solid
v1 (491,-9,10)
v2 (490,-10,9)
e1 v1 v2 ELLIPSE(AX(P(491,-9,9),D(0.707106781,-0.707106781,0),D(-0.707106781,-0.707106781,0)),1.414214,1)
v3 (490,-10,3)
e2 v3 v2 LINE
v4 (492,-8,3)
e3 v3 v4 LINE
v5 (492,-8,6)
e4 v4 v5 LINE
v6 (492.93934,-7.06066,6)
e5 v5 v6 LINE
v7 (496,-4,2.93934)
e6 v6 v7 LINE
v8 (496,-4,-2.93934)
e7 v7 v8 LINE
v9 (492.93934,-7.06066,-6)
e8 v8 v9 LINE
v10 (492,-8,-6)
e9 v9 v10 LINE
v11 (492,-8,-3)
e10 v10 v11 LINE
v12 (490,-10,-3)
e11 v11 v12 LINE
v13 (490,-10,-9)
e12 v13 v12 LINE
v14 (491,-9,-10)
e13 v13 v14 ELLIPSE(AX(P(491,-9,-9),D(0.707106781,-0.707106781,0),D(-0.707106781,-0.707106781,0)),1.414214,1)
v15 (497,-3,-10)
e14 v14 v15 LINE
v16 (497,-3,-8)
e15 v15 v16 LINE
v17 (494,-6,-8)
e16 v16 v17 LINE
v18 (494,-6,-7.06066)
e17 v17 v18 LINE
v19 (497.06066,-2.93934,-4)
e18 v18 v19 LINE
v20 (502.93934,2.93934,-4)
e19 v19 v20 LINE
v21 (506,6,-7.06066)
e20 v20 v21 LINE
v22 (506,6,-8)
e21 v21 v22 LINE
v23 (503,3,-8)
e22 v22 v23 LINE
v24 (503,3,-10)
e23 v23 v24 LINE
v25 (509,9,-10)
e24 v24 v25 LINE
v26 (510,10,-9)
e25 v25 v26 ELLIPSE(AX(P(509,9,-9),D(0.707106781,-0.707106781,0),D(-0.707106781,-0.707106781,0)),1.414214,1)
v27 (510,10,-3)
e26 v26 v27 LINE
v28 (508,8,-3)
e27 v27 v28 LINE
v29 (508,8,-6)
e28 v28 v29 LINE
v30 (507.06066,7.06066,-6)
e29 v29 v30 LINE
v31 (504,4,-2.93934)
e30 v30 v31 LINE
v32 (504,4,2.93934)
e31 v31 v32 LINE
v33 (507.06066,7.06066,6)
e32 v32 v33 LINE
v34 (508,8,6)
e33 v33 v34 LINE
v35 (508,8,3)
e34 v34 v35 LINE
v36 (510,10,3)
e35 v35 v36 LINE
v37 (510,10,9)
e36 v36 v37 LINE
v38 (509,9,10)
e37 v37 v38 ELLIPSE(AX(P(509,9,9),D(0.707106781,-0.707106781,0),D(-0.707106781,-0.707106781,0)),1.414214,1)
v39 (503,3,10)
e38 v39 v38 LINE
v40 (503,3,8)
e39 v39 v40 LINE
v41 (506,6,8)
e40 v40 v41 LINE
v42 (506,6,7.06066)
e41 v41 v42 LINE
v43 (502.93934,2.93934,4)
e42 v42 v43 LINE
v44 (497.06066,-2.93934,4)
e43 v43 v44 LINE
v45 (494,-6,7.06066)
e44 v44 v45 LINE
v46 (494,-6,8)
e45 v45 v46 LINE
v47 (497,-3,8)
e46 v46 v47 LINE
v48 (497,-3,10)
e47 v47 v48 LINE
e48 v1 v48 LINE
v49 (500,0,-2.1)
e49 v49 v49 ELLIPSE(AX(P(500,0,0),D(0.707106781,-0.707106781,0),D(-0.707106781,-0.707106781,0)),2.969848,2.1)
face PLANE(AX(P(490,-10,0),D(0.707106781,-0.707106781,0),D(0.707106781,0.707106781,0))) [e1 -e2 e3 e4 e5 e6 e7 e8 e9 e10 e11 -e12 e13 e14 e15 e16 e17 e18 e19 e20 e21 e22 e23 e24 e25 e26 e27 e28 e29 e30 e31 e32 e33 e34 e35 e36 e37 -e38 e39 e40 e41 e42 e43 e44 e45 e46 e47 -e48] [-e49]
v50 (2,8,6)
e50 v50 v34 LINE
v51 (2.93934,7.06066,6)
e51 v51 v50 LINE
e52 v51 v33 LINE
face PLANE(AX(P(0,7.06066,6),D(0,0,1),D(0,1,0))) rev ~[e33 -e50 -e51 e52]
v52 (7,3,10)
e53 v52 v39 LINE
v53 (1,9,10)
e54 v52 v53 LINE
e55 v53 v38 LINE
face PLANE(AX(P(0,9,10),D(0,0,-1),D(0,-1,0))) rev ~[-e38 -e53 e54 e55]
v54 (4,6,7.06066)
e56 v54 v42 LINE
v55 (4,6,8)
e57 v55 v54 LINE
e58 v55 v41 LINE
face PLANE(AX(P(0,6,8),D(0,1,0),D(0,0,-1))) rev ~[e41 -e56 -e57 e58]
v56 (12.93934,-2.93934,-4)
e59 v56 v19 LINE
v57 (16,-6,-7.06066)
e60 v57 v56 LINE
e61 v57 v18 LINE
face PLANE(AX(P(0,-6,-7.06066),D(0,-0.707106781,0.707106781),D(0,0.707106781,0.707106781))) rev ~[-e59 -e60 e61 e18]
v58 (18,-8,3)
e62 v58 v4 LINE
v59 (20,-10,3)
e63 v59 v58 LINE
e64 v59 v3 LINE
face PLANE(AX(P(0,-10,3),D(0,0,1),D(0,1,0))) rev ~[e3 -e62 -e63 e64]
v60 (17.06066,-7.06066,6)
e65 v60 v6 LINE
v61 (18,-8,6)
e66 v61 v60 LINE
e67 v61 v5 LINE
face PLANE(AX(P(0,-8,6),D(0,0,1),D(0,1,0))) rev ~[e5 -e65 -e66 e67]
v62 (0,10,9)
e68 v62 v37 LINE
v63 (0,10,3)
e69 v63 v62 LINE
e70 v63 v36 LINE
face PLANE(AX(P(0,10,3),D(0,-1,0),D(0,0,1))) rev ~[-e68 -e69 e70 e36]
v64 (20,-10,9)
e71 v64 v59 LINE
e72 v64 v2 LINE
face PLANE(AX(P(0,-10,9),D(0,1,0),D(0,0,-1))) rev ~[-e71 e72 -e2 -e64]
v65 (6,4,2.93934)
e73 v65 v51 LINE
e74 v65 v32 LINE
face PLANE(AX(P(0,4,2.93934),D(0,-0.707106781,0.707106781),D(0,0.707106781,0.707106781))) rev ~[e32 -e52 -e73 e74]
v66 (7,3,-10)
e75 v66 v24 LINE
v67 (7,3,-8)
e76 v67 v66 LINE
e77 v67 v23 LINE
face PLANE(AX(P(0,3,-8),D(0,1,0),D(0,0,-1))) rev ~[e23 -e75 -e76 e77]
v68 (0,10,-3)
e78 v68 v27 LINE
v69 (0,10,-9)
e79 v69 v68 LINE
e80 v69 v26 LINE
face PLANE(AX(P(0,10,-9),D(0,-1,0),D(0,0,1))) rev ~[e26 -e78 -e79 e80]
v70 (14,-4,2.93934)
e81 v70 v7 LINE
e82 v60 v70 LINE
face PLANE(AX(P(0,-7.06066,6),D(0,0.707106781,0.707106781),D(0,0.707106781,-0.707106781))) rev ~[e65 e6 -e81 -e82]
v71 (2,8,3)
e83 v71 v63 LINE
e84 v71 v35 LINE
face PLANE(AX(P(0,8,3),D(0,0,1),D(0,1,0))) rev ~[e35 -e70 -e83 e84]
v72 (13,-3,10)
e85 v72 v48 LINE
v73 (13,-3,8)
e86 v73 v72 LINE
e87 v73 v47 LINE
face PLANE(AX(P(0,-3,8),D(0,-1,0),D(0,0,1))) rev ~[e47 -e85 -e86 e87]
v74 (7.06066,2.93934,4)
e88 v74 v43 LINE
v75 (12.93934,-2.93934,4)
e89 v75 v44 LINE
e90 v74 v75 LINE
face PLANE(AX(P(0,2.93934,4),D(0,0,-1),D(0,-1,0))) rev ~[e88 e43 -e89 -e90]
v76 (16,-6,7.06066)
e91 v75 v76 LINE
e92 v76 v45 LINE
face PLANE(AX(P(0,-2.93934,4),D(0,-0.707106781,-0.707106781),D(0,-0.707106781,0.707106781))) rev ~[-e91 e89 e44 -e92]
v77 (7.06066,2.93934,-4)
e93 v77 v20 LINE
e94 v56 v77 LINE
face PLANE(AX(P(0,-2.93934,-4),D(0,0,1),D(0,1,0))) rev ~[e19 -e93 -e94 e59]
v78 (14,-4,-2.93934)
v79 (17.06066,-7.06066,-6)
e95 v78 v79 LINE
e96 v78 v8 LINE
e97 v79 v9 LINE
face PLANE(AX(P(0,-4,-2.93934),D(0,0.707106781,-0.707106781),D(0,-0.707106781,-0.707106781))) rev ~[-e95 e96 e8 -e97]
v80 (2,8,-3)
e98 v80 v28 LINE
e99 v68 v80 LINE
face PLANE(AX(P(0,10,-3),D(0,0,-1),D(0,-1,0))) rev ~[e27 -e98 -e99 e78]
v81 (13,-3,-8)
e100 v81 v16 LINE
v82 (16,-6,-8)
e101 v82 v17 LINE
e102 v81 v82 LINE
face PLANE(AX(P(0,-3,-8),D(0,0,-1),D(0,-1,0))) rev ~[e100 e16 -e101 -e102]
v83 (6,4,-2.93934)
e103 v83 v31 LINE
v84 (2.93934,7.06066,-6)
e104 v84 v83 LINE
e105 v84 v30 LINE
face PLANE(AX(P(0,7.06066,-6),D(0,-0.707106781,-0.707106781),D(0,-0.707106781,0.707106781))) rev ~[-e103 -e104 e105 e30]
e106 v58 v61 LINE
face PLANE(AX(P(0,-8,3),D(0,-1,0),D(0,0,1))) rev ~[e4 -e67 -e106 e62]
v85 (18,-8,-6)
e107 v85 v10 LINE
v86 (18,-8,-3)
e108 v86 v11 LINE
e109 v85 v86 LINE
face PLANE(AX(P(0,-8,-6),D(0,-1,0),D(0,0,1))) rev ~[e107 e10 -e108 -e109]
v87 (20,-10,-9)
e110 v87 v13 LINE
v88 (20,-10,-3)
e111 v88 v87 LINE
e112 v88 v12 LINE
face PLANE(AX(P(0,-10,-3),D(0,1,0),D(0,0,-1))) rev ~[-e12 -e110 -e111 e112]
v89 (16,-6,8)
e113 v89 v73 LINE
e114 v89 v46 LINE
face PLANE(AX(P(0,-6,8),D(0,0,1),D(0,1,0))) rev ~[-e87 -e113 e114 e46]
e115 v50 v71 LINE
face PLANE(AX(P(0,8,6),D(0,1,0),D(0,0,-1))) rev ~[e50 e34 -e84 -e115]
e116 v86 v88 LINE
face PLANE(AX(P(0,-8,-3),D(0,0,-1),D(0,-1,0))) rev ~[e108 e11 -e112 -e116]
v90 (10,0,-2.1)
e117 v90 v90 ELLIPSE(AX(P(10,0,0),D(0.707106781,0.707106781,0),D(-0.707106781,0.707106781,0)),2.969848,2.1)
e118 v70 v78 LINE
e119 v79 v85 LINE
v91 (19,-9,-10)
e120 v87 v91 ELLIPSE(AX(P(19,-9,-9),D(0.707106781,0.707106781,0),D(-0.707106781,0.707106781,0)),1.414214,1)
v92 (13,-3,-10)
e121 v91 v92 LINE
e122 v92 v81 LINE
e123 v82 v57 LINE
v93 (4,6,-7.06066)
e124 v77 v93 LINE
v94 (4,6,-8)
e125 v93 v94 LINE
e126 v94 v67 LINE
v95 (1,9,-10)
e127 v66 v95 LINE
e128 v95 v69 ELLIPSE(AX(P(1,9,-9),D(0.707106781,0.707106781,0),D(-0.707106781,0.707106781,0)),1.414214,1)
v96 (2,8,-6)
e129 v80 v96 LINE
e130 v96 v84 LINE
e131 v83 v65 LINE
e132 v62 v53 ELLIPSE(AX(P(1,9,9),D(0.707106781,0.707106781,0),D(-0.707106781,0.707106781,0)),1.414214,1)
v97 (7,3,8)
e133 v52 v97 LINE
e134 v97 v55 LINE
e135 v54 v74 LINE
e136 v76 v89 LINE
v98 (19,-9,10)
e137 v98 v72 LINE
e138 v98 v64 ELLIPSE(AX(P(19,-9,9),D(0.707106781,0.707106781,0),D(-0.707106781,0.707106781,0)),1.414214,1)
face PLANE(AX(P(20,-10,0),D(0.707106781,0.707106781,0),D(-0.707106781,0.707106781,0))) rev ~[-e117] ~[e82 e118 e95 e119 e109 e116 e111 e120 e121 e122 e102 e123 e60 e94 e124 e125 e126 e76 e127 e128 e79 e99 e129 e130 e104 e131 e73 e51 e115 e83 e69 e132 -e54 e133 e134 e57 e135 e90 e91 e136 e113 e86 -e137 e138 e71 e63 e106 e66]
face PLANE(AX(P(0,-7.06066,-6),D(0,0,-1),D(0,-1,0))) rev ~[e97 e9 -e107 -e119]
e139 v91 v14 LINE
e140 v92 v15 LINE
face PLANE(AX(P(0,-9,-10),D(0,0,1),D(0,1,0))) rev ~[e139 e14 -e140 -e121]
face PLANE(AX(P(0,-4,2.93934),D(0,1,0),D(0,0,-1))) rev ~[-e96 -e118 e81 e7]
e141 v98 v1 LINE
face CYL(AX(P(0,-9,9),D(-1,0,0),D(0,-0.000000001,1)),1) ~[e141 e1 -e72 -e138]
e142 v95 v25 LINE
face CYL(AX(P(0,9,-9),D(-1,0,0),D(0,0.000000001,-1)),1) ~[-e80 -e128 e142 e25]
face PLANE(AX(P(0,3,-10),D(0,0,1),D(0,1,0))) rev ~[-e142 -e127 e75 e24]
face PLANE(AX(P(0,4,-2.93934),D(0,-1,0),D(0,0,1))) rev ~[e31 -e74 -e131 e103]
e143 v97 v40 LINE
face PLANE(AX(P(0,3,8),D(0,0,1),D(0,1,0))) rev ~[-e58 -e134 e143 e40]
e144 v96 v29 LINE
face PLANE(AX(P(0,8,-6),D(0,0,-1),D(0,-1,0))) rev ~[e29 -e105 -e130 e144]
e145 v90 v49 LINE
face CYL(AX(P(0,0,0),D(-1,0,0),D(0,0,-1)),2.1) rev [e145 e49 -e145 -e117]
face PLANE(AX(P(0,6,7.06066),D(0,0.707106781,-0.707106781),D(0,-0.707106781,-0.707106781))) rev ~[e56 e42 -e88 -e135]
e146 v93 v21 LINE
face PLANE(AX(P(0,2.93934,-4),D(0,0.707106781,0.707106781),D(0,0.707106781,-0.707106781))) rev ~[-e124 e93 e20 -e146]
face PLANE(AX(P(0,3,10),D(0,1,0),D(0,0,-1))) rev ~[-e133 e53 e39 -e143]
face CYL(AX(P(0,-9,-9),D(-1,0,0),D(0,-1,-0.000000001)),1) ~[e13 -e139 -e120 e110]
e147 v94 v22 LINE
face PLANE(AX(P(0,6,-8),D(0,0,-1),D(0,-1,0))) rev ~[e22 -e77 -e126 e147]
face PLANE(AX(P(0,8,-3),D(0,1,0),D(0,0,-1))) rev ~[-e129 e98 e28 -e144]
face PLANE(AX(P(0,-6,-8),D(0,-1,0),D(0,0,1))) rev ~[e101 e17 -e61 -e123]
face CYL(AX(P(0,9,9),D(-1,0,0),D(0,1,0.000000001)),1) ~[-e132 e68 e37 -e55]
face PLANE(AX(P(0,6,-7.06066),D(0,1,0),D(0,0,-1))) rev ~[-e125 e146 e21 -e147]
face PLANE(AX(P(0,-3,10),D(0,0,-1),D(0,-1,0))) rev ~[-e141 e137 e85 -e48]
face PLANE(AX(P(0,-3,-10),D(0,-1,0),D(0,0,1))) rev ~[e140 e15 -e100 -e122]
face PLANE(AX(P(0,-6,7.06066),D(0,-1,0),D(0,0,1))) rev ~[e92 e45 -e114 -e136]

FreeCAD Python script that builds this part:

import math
import FreeCAD as App
import Part
import Sketcher

doc = App.newDocument("Part")
body = doc.addObject("PartDesign::Body", "Body")

sketch1 = doc.addObject("Sketcher::SketchObject", "Sketch")
body.addObject(sketch1)
sketch1.AttachmentSupport = (doc.YZ_Plane, [""])
sketch1.MapMode = "FlatFace"
sketch1.addGeometry([
    Part.LineSegment(App.Vector(9, 10, 0), App.Vector(3, 10, 0)),
    Part.LineSegment(App.Vector(3, 10, 0), App.Vector(3, 8, 0)),
    Part.LineSegment(App.Vector(3, 8, 0), App.Vector(6, 8, 0)),
    Part.LineSegment(App.Vector(6, 8, 0), App.Vector(6, 7.1, 0)),
    Part.LineSegment(App.Vector(6, 7.1, 0), App.Vector(2.9, 4, 0)),
    Part.LineSegment(App.Vector(2.9, 4, 0), App.Vector(-2.9, 4, 0)),
    Part.LineSegment(App.Vector(-2.9, 4, 0), App.Vector(-6, 7.1, 0)),
    Part.LineSegment(App.Vector(-6, 7.1, 0), App.Vector(-6, 8, 0)),
    Part.LineSegment(App.Vector(-6, 8, 0), App.Vector(-3, 8, 0)),
    Part.LineSegment(App.Vector(-3, 8, 0), App.Vector(-3, 10, 0)),
    Part.LineSegment(App.Vector(-3, 10, 0), App.Vector(-9, 10, 0)),
    Part.ArcOfCircle(Part.Circle(App.Vector(-9, 9, 0), App.Vector(0, 0, 1), 1), math.radians(90), math.radians(180)),
    Part.LineSegment(App.Vector(-10, 9, 0), App.Vector(-10, 3, 0)),
    Part.LineSegment(App.Vector(-10, 3, 0), App.Vector(-8, 3, 0)),
    Part.LineSegment(App.Vector(-8, 3, 0), App.Vector(-8, 6, 0)),
    Part.LineSegment(App.Vector(-8, 6, 0), App.Vector(-7.1, 6, 0)),
    Part.LineSegment(App.Vector(-7.1, 6, 0), App.Vector(-4, 2.9, 0)),
    Part.LineSegment(App.Vector(-4, 2.9, 0), App.Vector(-4, -2.9, 0)),
    Part.LineSegment(App.Vector(-4, -2.9, 0), App.Vector(-7.1, -6, 0)),
    Part.LineSegment(App.Vector(-7.1, -6, 0), App.Vector(-8, -6, 0)),
    Part.LineSegment(App.Vector(-8, -6, 0), App.Vector(-8, -3, 0)),
    Part.LineSegment(App.Vector(-8, -3, 0), App.Vector(-10, -3, 0)),
    Part.LineSegment(App.Vector(-10, -3, 0), App.Vector(-10, -9, 0)),
    Part.ArcOfCircle(Part.Circle(App.Vector(-9, -9, 0), App.Vector(0, 0, 1), 1), math.radians(-180), math.radians(-90)),
    Part.LineSegment(App.Vector(-9, -10, 0), App.Vector(-3, -10, 0)),
    Part.LineSegment(App.Vector(-3, -10, 0), App.Vector(-3, -8, 0)),
    Part.LineSegment(App.Vector(-3, -8, 0), App.Vector(-6, -8, 0)),
    Part.LineSegment(App.Vector(-6, -8, 0), App.Vector(-6, -7.1, 0)),
    Part.LineSegment(App.Vector(-6, -7.1, 0), App.Vector(-2.9, -4, 0)),
    Part.LineSegment(App.Vector(-2.9, -4, 0), App.Vector(2.9, -4, 0)),
    Part.LineSegment(App.Vector(2.9, -4, 0), App.Vector(6, -7.1, 0)),
    Part.LineSegment(App.Vector(6, -7.1, 0), App.Vector(6, -8, 0)),
    Part.LineSegment(App.Vector(6, -8, 0), App.Vector(3, -8, 0)),
    Part.LineSegment(App.Vector(3, -8, 0), App.Vector(3, -10, 0)),
    Part.LineSegment(App.Vector(3, -10, 0), App.Vector(9, -10, 0)),
    Part.ArcOfCircle(Part.Circle(App.Vector(9, -9, 0), App.Vector(0, 0, 1), 1), math.radians(-90), math.radians(0)),
    Part.LineSegment(App.Vector(10, -9, 0), App.Vector(10, -3, 0)),
    Part.LineSegment(App.Vector(10, -3, 0), App.Vector(8, -3, 0)),
    Part.LineSegment(App.Vector(8, -3, 0), App.Vector(8, -6, 0)),
    Part.LineSegment(App.Vector(8, -6, 0), App.Vector(7.1, -6, 0)),
    Part.LineSegment(App.Vector(7.1, -6, 0), App.Vector(4, -2.9, 0)),
    Part.LineSegment(App.Vector(4, -2.9, 0), App.Vector(4, 2.9, 0)),
    Part.LineSegment(App.Vector(4, 2.9, 0), App.Vector(7.1, 6, 0)),
    Part.LineSegment(App.Vector(7.1, 6, 0), App.Vector(8, 6, 0)),
    Part.LineSegment(App.Vector(8, 6, 0), App.Vector(8, 3, 0)),
    Part.LineSegment(App.Vector(8, 3, 0), App.Vector(10, 3, 0)),
    Part.LineSegment(App.Vector(10, 3, 0), App.Vector(10, 9, 0)),
    Part.ArcOfCircle(Part.Circle(App.Vector(9, 9, 0), App.Vector(0, 0, 1), 1), math.radians(0), math.radians(90)),
    Part.Circle(App.Vector(0, 0, 0), App.Vector(0, 0, 1), 2.1),
], False)
sketch1.addConstraint([
    Sketcher.Constraint("Coincident", 0, 2, 1, 1),
    Sketcher.Constraint("Coincident", 1, 2, 2, 1),
    Sketcher.Constraint("Coincident", 2, 2, 3, 1),
    Sketcher.Constraint("Coincident", 3, 2, 4, 1),
    Sketcher.Constraint("Coincident", 4, 2, 5, 1),
    Sketcher.Constraint("Coincident", 5, 2, 6, 1),
    Sketcher.Constraint("Coincident", 6, 2, 7, 1),
    Sketcher.Constraint("Coincident", 7, 2, 8, 1),
    Sketcher.Constraint("Coincident", 8, 2, 9, 1),
    Sketcher.Constraint("Coincident", 9, 2, 10, 1),
    Sketcher.Constraint("Tangent", 10, 2, 11, 1),
    Sketcher.Constraint("Tangent", 11, 2, 12, 1),
    Sketcher.Constraint("Coincident", 12, 2, 13, 1),
    Sketcher.Constraint("Coincident", 13, 2, 14, 1),
    Sketcher.Constraint("Coincident", 14, 2, 15, 1),
    Sketcher.Constraint("Coincident", 15, 2, 16, 1),
    Sketcher.Constraint("Coincident", 16, 2, 17, 1),
    Sketcher.Constraint("Coincident", 17, 2, 18, 1),
    Sketcher.Constraint("Coincident", 18, 2, 19, 1),
    Sketcher.Constraint("Coincident", 19, 2, 20, 1),
    Sketcher.Constraint("Coincident", 20, 2, 21, 1),
    Sketcher.Constraint("Coincident", 21, 2, 22, 1),
    Sketcher.Constraint("Tangent", 22, 2, 23, 1),
    Sketcher.Constraint("Tangent", 23, 2, 24, 1),
    Sketcher.Constraint("Coincident", 24, 2, 25, 1),
    Sketcher.Constraint("Coincident", 25, 2, 26, 1),
    Sketcher.Constraint("Coincident", 26, 2, 27, 1),
    Sketcher.Constraint("Coincident", 27, 2, 28, 1),
    Sketcher.Constraint("Coincident", 28, 2, 29, 1),
    Sketcher.Constraint("Coincident", 29, 2, 30, 1),
    Sketcher.Constraint("Coincident", 30, 2, 31, 1),
    Sketcher.Constraint("Coincident", 31, 2, 32, 1),
    Sketcher.Constraint("Coincident", 32, 2, 33, 1),
    Sketcher.Constraint("Coincident", 33, 2, 34, 1),
    Sketcher.Constraint("Tangent", 34, 2, 35, 1),
    Sketcher.Constraint("Tangent", 35, 2, 36, 1),
    Sketcher.Constraint("Coincident", 36, 2, 37, 1),
    Sketcher.Constraint("Coincident", 37, 2, 38, 1),
    Sketcher.Constraint("Coincident", 38, 2, 39, 1),
    Sketcher.Constraint("Coincident", 39, 2, 40, 1),
    Sketcher.Constraint("Coincident", 40, 2, 41, 1),
    Sketcher.Constraint("Coincident", 41, 2, 42, 1),
    Sketcher.Constraint("Coincident", 42, 2, 43, 1),
    Sketcher.Constraint("Coincident", 43, 2, 44, 1),
    Sketcher.Constraint("Coincident", 44, 2, 45, 1),
    Sketcher.Constraint("Coincident", 45, 2, 46, 1),
    Sketcher.Constraint("Tangent", 46, 2, 47, 1),
    Sketcher.Constraint("Tangent", 47, 2, 0, 1),
    Sketcher.Constraint("Horizontal", 0),
    Sketcher.Constraint("Vertical", 1),
    Sketcher.Constraint("Horizontal", 2),
    Sketcher.Constraint("Vertical", 3),
    Sketcher.Constraint("Horizontal", 5),
    Sketcher.Constraint("Vertical", 7),
    Sketcher.Constraint("Horizontal", 8),
    Sketcher.Constraint("Vertical", 9),
    Sketcher.Constraint("Horizontal", 10),
    Sketcher.Constraint("Vertical", 12),
    Sketcher.Constraint("Horizontal", 13),
    Sketcher.Constraint("Vertical", 14),
    Sketcher.Constraint("Horizontal", 15),
    Sketcher.Constraint("Vertical", 17),
    Sketcher.Constraint("Horizontal", 19),
    Sketcher.Constraint("Vertical", 20),
    Sketcher.Constraint("Horizontal", 21),
    Sketcher.Constraint("Vertical", 22),
    Sketcher.Constraint("Horizontal", 24),
    Sketcher.Constraint("Vertical", 25),
    Sketcher.Constraint("Horizontal", 26),
    Sketcher.Constraint("Vertical", 27),
    Sketcher.Constraint("Horizontal", 29),
    Sketcher.Constraint("Vertical", 31),
    Sketcher.Constraint("Horizontal", 32),
    Sketcher.Constraint("Vertical", 33),
    Sketcher.Constraint("Horizontal", 34),
    Sketcher.Constraint("Vertical", 36),
    Sketcher.Constraint("Horizontal", 37),
    Sketcher.Constraint("Vertical", 38),
    Sketcher.Constraint("Horizontal", 39),
    Sketcher.Constraint("Vertical", 41),
    Sketcher.Constraint("Horizontal", 43),
    Sketcher.Constraint("Vertical", 44),
    Sketcher.Constraint("Horizontal", 45),
    Sketcher.Constraint("Vertical", 46),
    Sketcher.Constraint("Coincident", 48, 3, -1, 1),
    Sketcher.Constraint("Equal", 11, 23),
    Sketcher.Constraint("Equal", 23, 35),
    Sketcher.Constraint("Equal", 35, 47),
    Sketcher.Constraint("Symmetric", 11, 3, 35, 3, -1, 1),
    Sketcher.Constraint("Symmetric", 23, 3, 47, 3, -1, 1),
    Sketcher.Constraint("Symmetric", 1, 2, 25, 2, -1, 1),
    Sketcher.Constraint("Symmetric", 3, 2, 27, 2, -1, 1),
    Sketcher.Constraint("Symmetric", 4, 2, 28, 2, -1, 1),
    Sketcher.Constraint("Symmetric", 6, 2, 30, 2, -1, 1),
    Sketcher.Constraint("Symmetric", 8, 2, 32, 2, -1, 1),
    Sketcher.Constraint("Symmetric", 13, 2, 37, 2, -1, 1),
    Sketcher.Constraint("Symmetric", 15, 2, 39, 2, -1, 1),
    Sketcher.Constraint("Symmetric", 16, 2, 40, 2, -1, 1),
    Sketcher.Constraint("Symmetric", 18, 2, 42, 2, -1, 1),
    Sketcher.Constraint("Symmetric", 20, 2, 44, 2, -1, 1),
    Sketcher.Constraint("Symmetric", 23, 3, 35, 3, -2),
    Sketcher.Constraint("Symmetric", 3, 2, 6, 2, -2),
    Sketcher.Constraint("Symmetric", 1, 2, 8, 2, -2),
    Sketcher.Constraint("Symmetric", 20, 2, 37, 2, -2),
    Sketcher.Constraint("Symmetric", 18, 2, 39, 2, -2),
    Sketcher.Constraint("Perpendicular", 4, 6),
    Sketcher.Constraint("Parallel", 6, 16),
    Sketcher.Constraint("Perpendicular", 16, 18),
    Sketcher.Constraint("Perpendicular", 28, 30),
    Sketcher.Constraint("Perpendicular", 40, 42),
    Sketcher.Constraint("Horizontal", 17, 2, 40, 2),
    Sketcher.Constraint("Equal", 45, 1),
    Sketcher.Constraint("Equal", 43, 3),
    Sketcher.Constraint("Equal", 34, 12),
    Sketcher.Constraint("Equal", 32, 14),
    Sketcher.Constraint("Equal", 29, 17),
    Sketcher.Constraint("Equal", 6, 16),
    Sketcher.Constraint("Radius", 11, 1.0),
    Sketcher.Constraint("Diameter", 48, 4.2),
    Sketcher.Constraint("DistanceX", 0, 2, 0, 1, 6.0),
    Sketcher.Constraint("DistanceX", 2, 1, 2, 2, 3.0),
    Sketcher.Constraint("DistanceX", 13, 1, 13, 2, 2.0),
    Sketcher.Constraint("DistanceX", 11, 3, -1, 1, 9.0),
    Sketcher.Constraint("DistanceY", -1, 1, 4, 2, 4.0),
    Sketcher.Constraint("DistanceX", 5, 2, 5, 1, 5.87868),
])
pad1 = doc.addObject("PartDesign::Pad", "Pad")
body.addObject(pad1)
pad1.Profile = sketch1
pad1.Length = 510

sketch2 = doc.addObject("Sketcher::SketchObject", "Sketch001")
body.addObject(sketch2)
sketch2.AttachmentSupport = (doc.XY_Plane, [""])
sketch2.MapMode = "FlatFace"
sketch2.addGeometry([
    Part.LineSegment(App.Vector(0, 10, 0), App.Vector(0, -10, 0)),
    Part.LineSegment(App.Vector(0, -10, 0), App.Vector(20, -10, 0)),
    Part.LineSegment(App.Vector(20, -10, 0), App.Vector(0, 10, 0)),
], False)
sketch2.addConstraint([
    Sketcher.Constraint("Coincident", 0, 2, 1, 1),
    Sketcher.Constraint("Coincident", 1, 2, 2, 1),
    Sketcher.Constraint("Coincident", 2, 2, 0, 1),
    Sketcher.Constraint("Vertical", 0),
    Sketcher.Constraint("Horizontal", 1),
    Sketcher.Constraint("Symmetric", 0, 2, 2, 2, -1, 1),
    Sketcher.Constraint("Equal", 1, 0),
    Sketcher.Constraint("DistanceX", 1, 1, 1, 2, 20.0),
])
pocket1 = doc.addObject("PartDesign::Pocket", "Pocket")
body.addObject(pocket1)
pocket1.Profile = sketch2
pocket1.Length = 20
pocket1.Midplane = True

sketch3 = doc.addObject("Sketcher::SketchObject", "Sketch002")
body.addObject(sketch3)
sketch3.AttachmentSupport = (doc.XY_Plane, [""])
sketch3.MapMode = "FlatFace"
sketch3.addGeometry([
    Part.LineSegment(App.Vector(510, -10, 0), App.Vector(510, 10, 0)),
    Part.LineSegment(App.Vector(510, 10, 0), App.Vector(490, -10, 0)),
    Part.LineSegment(App.Vector(490, -10, 0), App.Vector(510, -10, 0)),
], False)
sketch3.addConstraint([
    Sketcher.Constraint("Coincident", 0, 2, 1, 1),
    Sketcher.Constraint("Coincident", 1, 2, 2, 1),
    Sketcher.Constraint("Coincident", 2, 2, 0, 1),
    Sketcher.Constraint("Vertical", 0),
    Sketcher.Constraint("Horizontal", 2),
    Sketcher.Constraint("Equal", 2, 0),
    Sketcher.Constraint("DistanceX", 2, 1, 2, 2, 20.0),
    Sketcher.Constraint("DistanceX", -1, 1, 0, 2, 510.0),
    Sketcher.Constraint("DistanceY", -1, 1, 0, 2, 10.0),
])
pocket2 = doc.addObject("PartDesign::Pocket", "Pocket001")
body.addObject(pocket2)
pocket2.Profile = sketch3
pocket2.Length = 20
pocket2.Midplane = True

doc.recompute()
